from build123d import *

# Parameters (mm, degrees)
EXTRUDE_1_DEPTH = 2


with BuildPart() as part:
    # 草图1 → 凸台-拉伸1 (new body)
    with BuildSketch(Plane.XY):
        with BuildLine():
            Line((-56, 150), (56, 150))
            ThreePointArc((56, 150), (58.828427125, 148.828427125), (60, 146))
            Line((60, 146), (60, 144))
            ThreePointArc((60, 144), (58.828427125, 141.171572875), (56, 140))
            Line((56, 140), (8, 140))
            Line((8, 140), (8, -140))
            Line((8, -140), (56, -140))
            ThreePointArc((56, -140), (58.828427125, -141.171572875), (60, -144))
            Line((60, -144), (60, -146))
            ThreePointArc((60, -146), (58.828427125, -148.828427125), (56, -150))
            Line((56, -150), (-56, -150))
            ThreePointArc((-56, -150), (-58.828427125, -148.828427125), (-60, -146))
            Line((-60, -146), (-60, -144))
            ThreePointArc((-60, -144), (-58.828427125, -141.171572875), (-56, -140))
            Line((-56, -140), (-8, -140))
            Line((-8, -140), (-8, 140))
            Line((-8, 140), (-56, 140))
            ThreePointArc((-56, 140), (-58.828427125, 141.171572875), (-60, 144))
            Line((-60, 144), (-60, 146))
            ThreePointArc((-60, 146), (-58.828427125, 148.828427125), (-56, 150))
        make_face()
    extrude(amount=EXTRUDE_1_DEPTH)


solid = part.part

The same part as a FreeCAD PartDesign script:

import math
import FreeCAD as App
import Part
import Sketcher

doc = App.newDocument("Part")
body = doc.addObject("PartDesign::Body", "Body")

# Sketch on XY plane
sketch1 = body.newObject("Sketcher::SketchObject", "Sketch")
sketch1.AttachmentSupport = (doc.getObject("XY_Plane"), [""])
sketch1.MapMode = "FlatFace"
sketch1.addGeometry([
    Part.LineSegment(App.Vector(56, 150, 0), App.Vector(-56, 150, 0)),  # 0
    Part.ArcOfCircle(Part.Circle(App.Vector(-56, 146, 0), App.Vector(0, 0, 1), 4), math.radians(90), math.radians(180)),  # 1
    Part.LineSegment(App.Vector(-60, 146, 0), App.Vector(-60, 144, 0)),  # 2
    Part.ArcOfCircle(Part.Circle(App.Vector(-56, 144, 0), App.Vector(0, 0, 1), 4), math.radians(180), math.radians(270)),  # 3
    Part.LineSegment(App.Vector(-56, 140, 0), App.Vector(-8, 140, 0)),  # 4
    Part.LineSegment(App.Vector(-8, 140, 0), App.Vector(-8, -140, 0)),  # 5
    Part.LineSegment(App.Vector(-8, -140, 0), App.Vector(-56, -140, 0)),  # 6
    Part.ArcOfCircle(Part.Circle(App.Vector(-56, -144, 0), App.Vector(0, 0, 1), 4), math.radians(90), math.radians(180)),  # 7
    Part.LineSegment(App.Vector(-60, -144, 0), App.Vector(-60, -146, 0)),  # 8
    Part.ArcOfCircle(Part.Circle(App.Vector(-56, -146, 0), App.Vector(0, 0, 1), 4), math.radians(180), math.radians(270)),  # 9
    Part.LineSegment(App.Vector(-56, -150, 0), App.Vector(56, -150, 0)),  # 10
    Part.ArcOfCircle(Part.Circle(App.Vector(56, -146, 0), App.Vector(0, 0, 1), 4), math.radians(-90), math.radians(0)),  # 11
    Part.LineSegment(App.Vector(60, -146, 0), App.Vector(60, -144, 0)),  # 12
    Part.ArcOfCircle(Part.Circle(App.Vector(56, -144, 0), App.Vector(0, 0, 1), 4), math.radians(0), math.radians(90)),  # 13
    Part.LineSegment(App.Vector(56, -140, 0), App.Vector(8, -140, 0)),  # 14
    Part.LineSegment(App.Vector(8, -140, 0), App.Vector(8, 140, 0)),  # 15
    Part.LineSegment(App.Vector(8, 140, 0), App.Vector(56, 140, 0)),  # 16
    Part.ArcOfCircle(Part.Circle(App.Vector(56, 144, 0), App.Vector(0, 0, 1), 4), math.radians(-90), math.radians(0)),  # 17
    Part.LineSegment(App.Vector(60, 144, 0), App.Vector(60, 146, 0)),  # 18
    Part.ArcOfCircle(Part.Circle(App.Vector(56, 146, 0), App.Vector(0, 0, 1), 4), math.radians(0), math.radians(90)),  # 19
], False)
sketch1.addConstraint([
    Sketcher.Constraint("Tangent", 0, 2, 1, 1),
    Sketcher.Constraint("Tangent", 1, 2, 2, 1),
    Sketcher.Constraint("Tangent", 2, 2, 3, 1),
    Sketcher.Constraint("Tangent", 3, 2, 4, 1),
    Sketcher.Constraint("Coincident", 4, 2, 5, 1),
    Sketcher.Constraint("Coincident", 5, 2, 6, 1),
    Sketcher.Constraint("Tangent", 6, 2, 7, 1),
    Sketcher.Constraint("Tangent", 7, 2, 8, 1),
    Sketcher.Constraint("Tangent", 8, 2, 9, 1),
    Sketcher.Constraint("Tangent", 9, 2, 10, 1),
    Sketcher.Constraint("Tangent", 10, 2, 11, 1),
    Sketcher.Constraint("Tangent", 11, 2, 12, 1),
    Sketcher.Constraint("Tangent", 12, 2, 13, 1),
    Sketcher.Constraint("Tangent", 13, 2, 14, 1),
    Sketcher.Constraint("Coincident", 14, 2, 15, 1),
    Sketcher.Constraint("Coincident", 15, 2, 16, 1),
    Sketcher.Constraint("Tangent", 16, 2, 17, 1),
    Sketcher.Constraint("Tangent", 17, 2, 18, 1),
    Sketcher.Constraint("Tangent", 18, 2, 19, 1),
    Sketcher.Constraint("Tangent", 19, 2, 0, 1),
    Sketcher.Constraint("Horizontal", 0),
    Sketcher.Constraint("Vertical", 2),
    Sketcher.Constraint("Horizontal", 4),
    Sketcher.Constraint("Vertical", 5),
    Sketcher.Constraint("Horizontal", 6),
    Sketcher.Constraint("Vertical", 8),
    Sketcher.Constraint("Horizontal", 10),
    Sketcher.Constraint("Vertical", 12),
    Sketcher.Constraint("Horizontal", 14),
    Sketcher.Constraint("Vertical", 15),
    Sketcher.Constraint("Horizontal", 16),
    Sketcher.Constraint("Vertical", 18),
    Sketcher.Constraint("Equal", 1, 3),
    Sketcher.Constraint("Equal", 3, 7),
    Sketcher.Constraint("Equal", 7, 9),
    Sketcher.Constraint("Equal", 9, 11),
    Sketcher.Constraint("Equal", 11, 13),
    Sketcher.Constraint("Equal", 13, 17),
    Sketcher.Constraint("Equal", 17, 19),
    Sketcher.Constraint("Symmetric", 1, 3, 11, 3, -1, 1),
    Sketcher.Constraint("Symmetric", 7, 3, 17, 3, -1, 1),
    Sketcher.Constraint("Symmetric", 4, 2, 14, 2, -1, 1),
    Sketcher.Constraint("Symmetric", 7, 3, 13, 3, -2),
    Sketcher.Constraint("Radius", 1, 4.0),
    Sketcher.Constraint("DistanceX", 0, 2, 0, 1, 112.0),
    Sketcher.Constraint("DistanceX", 4, 1, 4, 2, 48.0),
    Sketcher.Constraint("DistanceY", 2, 2, 2, 1, 2.0),
    Sketcher.Constraint("DistanceY", 5, 2, 5, 1, 280.0),
])
pad1 = body.newObject("PartDesign::Pad", "Pad")
pad1.Profile = sketch1
pad1.Length = 2

doc.recompute()
